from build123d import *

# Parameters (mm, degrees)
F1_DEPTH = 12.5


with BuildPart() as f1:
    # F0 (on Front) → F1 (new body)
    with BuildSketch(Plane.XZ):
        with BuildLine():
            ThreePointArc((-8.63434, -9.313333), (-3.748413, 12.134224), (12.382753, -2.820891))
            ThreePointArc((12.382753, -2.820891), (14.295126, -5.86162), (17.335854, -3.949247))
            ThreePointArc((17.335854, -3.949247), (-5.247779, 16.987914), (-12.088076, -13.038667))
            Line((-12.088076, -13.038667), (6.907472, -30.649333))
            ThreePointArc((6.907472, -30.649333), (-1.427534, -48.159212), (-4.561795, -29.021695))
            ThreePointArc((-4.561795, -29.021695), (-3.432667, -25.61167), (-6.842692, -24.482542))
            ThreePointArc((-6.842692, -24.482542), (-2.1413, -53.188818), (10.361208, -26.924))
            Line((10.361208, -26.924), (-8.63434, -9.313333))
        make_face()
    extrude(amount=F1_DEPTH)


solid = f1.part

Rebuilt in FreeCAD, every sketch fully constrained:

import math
import FreeCAD as App
import Part
import Sketcher
Q = App.Units.Quantity

doc = App.newDocument("Part")
body = doc.addObject("PartDesign::Body", "Body")

# Sketch on XZ plane
sketch1 = body.newObject("Sketcher::SketchObject", "Sketch")
sketch1.AttachmentSupport = (doc.getObject("XZ_Plane"), [""])
sketch1.MapMode = "FlatFace"
sketch1.addGeometry([
    Part.ArcOfCircle(Part.Circle(App.Vector(0, 0, 0), App.Vector(0, 0, 1), 12.7), math.radians(-13), math.radians(227)),  # 0
    Part.ArcOfCircle(Part.Circle(App.Vector(14.9, -3.4, 0), App.Vector(0, 0, 1), 2.5), math.radians(167), math.radians(347)),  # 1
    Part.ArcOfCircle(Part.Circle(App.Vector(0, 0, 0), App.Vector(0, 0, 1), 17.8), math.radians(-13), math.radians(227)),  # 2
    Part.LineSegment(App.Vector(-12.1, -13, 0), App.Vector(6.9, -30.6, 0)),  # 3
    Part.ArcOfCircle(Part.Circle(App.Vector(0, -38.1, 0), App.Vector(0, 0, 1), 10.2), math.radians(117), math.radians(407)),  # 4
    Part.ArcOfCircle(Part.Circle(App.Vector(-5.7, -26.8, 0), App.Vector(0, 0, 1), 2.5), math.radians(-63), math.radians(117)),  # 5
    Part.ArcOfCircle(Part.Circle(App.Vector(0, -38.1, 0), App.Vector(0, 0, 1), 15.2), math.radians(117), math.radians(407)),  # 6
    Part.LineSegment(App.Vector(10.4, -26.9, 0), App.Vector(-8.6, -9.3, 0)),  # 7
], False)
sketch1.addConstraint([
    Sketcher.Constraint("Tangent", 0, 1, 1, 1),
    Sketcher.Constraint("Tangent", 1, 2, 2, 1),
    Sketcher.Constraint("Tangent", 2, 2, 3, 1),
    Sketcher.Constraint("Tangent", 3, 2, 4, 2),
    Sketcher.Constraint("Tangent", 4, 1, 5, 1),
    Sketcher.Constraint("Tangent", 5, 2, 6, 1),
    Sketcher.Constraint("Tangent", 6, 2, 7, 1),
    Sketcher.Constraint("Tangent", 7, 2, 0, 2),
    Sketcher.Constraint("Coincident", 0, 3, -1, 1),
    Sketcher.Constraint("Coincident", 2, 3, -1, 1),
    Sketcher.Constraint("Coincident", 6, 3, 4, 3),
    Sketcher.Constraint("Equal", 1, 5),
    Sketcher.Constraint("PointOnObject", 4, 3, -2),
    Sketcher.Constraint("Radius", 0, Q("0.5 in")),
    Sketcher.Constraint("Radius", 1, Q("0.1 in")),
    Sketcher.Constraint("Radius", 4, Q("0.4 in")),
    Sketcher.Constraint("DistanceY", 4, 3, -1, 1, Q("1.5 in")),
    Sketcher.Constraint("DistanceX", 0, 1, 1, 2, Q("4.953101 mm")),
    Sketcher.Constraint("DistanceY", 5, 3, -1, 1, Q("26.752119 mm")),
])
pad1 = body.newObject("PartDesign::Pad", "Pad")
pad1.Profile = sketch1
pad1.Length = 12.5

doc.recompute()
